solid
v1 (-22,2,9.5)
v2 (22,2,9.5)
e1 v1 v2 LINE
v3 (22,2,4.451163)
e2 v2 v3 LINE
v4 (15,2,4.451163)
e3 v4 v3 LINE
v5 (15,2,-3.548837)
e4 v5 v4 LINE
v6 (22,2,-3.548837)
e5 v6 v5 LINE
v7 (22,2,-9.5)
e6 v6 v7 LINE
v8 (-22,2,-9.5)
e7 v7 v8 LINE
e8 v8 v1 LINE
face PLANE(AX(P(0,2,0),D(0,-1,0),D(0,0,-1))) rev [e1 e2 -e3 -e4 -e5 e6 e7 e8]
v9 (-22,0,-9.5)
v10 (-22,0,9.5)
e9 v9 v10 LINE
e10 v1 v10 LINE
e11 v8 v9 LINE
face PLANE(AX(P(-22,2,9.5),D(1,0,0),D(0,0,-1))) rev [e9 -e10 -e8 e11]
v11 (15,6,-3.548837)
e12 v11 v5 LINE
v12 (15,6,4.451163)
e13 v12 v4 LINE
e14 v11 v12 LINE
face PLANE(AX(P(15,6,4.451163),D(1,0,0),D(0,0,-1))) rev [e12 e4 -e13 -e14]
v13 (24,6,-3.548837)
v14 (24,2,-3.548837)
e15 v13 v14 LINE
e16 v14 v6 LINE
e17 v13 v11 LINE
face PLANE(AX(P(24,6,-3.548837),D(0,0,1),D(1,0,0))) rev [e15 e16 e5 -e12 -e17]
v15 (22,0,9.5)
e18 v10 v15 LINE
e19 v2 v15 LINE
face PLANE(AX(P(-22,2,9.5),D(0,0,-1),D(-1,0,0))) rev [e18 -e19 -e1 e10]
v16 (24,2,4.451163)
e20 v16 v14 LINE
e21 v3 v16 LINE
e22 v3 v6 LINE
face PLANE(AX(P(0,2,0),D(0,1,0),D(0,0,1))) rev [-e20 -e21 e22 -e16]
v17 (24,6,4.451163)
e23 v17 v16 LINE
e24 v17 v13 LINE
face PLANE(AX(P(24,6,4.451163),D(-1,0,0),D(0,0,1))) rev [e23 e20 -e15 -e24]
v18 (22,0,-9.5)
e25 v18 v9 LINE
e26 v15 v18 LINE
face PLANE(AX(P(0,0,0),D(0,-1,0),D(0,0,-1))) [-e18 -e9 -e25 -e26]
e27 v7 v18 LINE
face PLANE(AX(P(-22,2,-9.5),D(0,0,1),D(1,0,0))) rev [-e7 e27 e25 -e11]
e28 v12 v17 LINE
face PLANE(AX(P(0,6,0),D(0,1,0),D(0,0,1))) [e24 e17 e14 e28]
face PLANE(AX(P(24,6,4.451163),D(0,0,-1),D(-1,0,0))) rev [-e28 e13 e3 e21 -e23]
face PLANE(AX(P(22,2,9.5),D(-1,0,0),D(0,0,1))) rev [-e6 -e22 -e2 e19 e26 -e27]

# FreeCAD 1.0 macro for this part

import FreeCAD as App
import Part
import Sketcher
from FreeCAD import Vector


def add_polygon(sketch, points):
    """Adds a closed chain of lines whose ends are joined by coincident constraints."""
    first, n = sketch.GeometryCount, len(points)
    for a, b in zip(points, points[1:] + points[:1]):
        sketch.addGeometry(Part.LineSegment(App.Vector(*a, 0), App.Vector(*b, 0)), False)
    for i in range(n):
        sketch.addConstraint(Sketcher.Constraint("Coincident", first + i, 2, first + (i + 1) % n, 1))

doc = App.newDocument("Part")
body = doc.addObject("PartDesign::Body", "Body")

sketch1 = doc.addObject("Sketcher::SketchObject", "Sketch")
body.addObject(sketch1)
sketch1.AttachmentSupport = (doc.XZ_Plane, [""])
sketch1.MapMode = "FlatFace"
add_polygon(sketch1, [(-22, -10), (-22, 10), (22, 10), (22, -10)])
sketch1.addConstraint(Sketcher.Constraint("Vertical", 0))
sketch1.addConstraint(Sketcher.Constraint("Horizontal", 1))
sketch1.addConstraint(Sketcher.Constraint("Vertical", 2))
sketch1.addConstraint(Sketcher.Constraint("Horizontal", 3))
sketch1.addConstraint(Sketcher.Constraint("Symmetric", 0, 2, 2, 2, -1, 1))
sketch1.addConstraint(Sketcher.Constraint("DistanceX", 1, 1, 1, 2, 44.0))
sketch1.addConstraint(Sketcher.Constraint("DistanceY", 0, 1, 0, 2, 19.0))
pad1 = doc.addObject("PartDesign::Pad", "Pad")
body.addObject(pad1)
pad1.Profile = sketch1
pad1.Length = 2
pad1.Reversed = True

sketch2 = doc.addObject("Sketcher::SketchObject", "Sketch001")
body.addObject(sketch2)
sketch2.AttachmentSupport = (doc.XZ_Plane, [""])
sketch2.MapMode = "FlatFace"
sketch2.AttachmentOffset = App.Placement(Vector(0, 0, -2), App.Rotation())
add_polygon(sketch2, [(15, -4), (15, 4), (24, 4), (24, -4)])
sketch2.addConstraint(Sketcher.Constraint("Vertical", 0))
sketch2.addConstraint(Sketcher.Constraint("Horizontal", 1))
sketch2.addConstraint(Sketcher.Constraint("Vertical", 2))
sketch2.addConstraint(Sketcher.Constraint("Horizontal", 3))
sketch2.addConstraint(Sketcher.Constraint("DistanceX", 1, 1, 1, 2, 9.0))
sketch2.addConstraint(Sketcher.Constraint("DistanceY", 0, 1, 0, 2, 8.0))
sketch2.addConstraint(Sketcher.Constraint("DistanceX", -1, 1, 0, 2, 15.0))
sketch2.addConstraint(Sketcher.Constraint("DistanceY", -1, 1, 0, 2, 4.451163))
pad2 = doc.addObject("PartDesign::Pad", "Pad001")
body.addObject(pad2)
pad2.Profile = sketch2
pad2.Length = 4
pad2.Reversed = True

doc.recompute()
